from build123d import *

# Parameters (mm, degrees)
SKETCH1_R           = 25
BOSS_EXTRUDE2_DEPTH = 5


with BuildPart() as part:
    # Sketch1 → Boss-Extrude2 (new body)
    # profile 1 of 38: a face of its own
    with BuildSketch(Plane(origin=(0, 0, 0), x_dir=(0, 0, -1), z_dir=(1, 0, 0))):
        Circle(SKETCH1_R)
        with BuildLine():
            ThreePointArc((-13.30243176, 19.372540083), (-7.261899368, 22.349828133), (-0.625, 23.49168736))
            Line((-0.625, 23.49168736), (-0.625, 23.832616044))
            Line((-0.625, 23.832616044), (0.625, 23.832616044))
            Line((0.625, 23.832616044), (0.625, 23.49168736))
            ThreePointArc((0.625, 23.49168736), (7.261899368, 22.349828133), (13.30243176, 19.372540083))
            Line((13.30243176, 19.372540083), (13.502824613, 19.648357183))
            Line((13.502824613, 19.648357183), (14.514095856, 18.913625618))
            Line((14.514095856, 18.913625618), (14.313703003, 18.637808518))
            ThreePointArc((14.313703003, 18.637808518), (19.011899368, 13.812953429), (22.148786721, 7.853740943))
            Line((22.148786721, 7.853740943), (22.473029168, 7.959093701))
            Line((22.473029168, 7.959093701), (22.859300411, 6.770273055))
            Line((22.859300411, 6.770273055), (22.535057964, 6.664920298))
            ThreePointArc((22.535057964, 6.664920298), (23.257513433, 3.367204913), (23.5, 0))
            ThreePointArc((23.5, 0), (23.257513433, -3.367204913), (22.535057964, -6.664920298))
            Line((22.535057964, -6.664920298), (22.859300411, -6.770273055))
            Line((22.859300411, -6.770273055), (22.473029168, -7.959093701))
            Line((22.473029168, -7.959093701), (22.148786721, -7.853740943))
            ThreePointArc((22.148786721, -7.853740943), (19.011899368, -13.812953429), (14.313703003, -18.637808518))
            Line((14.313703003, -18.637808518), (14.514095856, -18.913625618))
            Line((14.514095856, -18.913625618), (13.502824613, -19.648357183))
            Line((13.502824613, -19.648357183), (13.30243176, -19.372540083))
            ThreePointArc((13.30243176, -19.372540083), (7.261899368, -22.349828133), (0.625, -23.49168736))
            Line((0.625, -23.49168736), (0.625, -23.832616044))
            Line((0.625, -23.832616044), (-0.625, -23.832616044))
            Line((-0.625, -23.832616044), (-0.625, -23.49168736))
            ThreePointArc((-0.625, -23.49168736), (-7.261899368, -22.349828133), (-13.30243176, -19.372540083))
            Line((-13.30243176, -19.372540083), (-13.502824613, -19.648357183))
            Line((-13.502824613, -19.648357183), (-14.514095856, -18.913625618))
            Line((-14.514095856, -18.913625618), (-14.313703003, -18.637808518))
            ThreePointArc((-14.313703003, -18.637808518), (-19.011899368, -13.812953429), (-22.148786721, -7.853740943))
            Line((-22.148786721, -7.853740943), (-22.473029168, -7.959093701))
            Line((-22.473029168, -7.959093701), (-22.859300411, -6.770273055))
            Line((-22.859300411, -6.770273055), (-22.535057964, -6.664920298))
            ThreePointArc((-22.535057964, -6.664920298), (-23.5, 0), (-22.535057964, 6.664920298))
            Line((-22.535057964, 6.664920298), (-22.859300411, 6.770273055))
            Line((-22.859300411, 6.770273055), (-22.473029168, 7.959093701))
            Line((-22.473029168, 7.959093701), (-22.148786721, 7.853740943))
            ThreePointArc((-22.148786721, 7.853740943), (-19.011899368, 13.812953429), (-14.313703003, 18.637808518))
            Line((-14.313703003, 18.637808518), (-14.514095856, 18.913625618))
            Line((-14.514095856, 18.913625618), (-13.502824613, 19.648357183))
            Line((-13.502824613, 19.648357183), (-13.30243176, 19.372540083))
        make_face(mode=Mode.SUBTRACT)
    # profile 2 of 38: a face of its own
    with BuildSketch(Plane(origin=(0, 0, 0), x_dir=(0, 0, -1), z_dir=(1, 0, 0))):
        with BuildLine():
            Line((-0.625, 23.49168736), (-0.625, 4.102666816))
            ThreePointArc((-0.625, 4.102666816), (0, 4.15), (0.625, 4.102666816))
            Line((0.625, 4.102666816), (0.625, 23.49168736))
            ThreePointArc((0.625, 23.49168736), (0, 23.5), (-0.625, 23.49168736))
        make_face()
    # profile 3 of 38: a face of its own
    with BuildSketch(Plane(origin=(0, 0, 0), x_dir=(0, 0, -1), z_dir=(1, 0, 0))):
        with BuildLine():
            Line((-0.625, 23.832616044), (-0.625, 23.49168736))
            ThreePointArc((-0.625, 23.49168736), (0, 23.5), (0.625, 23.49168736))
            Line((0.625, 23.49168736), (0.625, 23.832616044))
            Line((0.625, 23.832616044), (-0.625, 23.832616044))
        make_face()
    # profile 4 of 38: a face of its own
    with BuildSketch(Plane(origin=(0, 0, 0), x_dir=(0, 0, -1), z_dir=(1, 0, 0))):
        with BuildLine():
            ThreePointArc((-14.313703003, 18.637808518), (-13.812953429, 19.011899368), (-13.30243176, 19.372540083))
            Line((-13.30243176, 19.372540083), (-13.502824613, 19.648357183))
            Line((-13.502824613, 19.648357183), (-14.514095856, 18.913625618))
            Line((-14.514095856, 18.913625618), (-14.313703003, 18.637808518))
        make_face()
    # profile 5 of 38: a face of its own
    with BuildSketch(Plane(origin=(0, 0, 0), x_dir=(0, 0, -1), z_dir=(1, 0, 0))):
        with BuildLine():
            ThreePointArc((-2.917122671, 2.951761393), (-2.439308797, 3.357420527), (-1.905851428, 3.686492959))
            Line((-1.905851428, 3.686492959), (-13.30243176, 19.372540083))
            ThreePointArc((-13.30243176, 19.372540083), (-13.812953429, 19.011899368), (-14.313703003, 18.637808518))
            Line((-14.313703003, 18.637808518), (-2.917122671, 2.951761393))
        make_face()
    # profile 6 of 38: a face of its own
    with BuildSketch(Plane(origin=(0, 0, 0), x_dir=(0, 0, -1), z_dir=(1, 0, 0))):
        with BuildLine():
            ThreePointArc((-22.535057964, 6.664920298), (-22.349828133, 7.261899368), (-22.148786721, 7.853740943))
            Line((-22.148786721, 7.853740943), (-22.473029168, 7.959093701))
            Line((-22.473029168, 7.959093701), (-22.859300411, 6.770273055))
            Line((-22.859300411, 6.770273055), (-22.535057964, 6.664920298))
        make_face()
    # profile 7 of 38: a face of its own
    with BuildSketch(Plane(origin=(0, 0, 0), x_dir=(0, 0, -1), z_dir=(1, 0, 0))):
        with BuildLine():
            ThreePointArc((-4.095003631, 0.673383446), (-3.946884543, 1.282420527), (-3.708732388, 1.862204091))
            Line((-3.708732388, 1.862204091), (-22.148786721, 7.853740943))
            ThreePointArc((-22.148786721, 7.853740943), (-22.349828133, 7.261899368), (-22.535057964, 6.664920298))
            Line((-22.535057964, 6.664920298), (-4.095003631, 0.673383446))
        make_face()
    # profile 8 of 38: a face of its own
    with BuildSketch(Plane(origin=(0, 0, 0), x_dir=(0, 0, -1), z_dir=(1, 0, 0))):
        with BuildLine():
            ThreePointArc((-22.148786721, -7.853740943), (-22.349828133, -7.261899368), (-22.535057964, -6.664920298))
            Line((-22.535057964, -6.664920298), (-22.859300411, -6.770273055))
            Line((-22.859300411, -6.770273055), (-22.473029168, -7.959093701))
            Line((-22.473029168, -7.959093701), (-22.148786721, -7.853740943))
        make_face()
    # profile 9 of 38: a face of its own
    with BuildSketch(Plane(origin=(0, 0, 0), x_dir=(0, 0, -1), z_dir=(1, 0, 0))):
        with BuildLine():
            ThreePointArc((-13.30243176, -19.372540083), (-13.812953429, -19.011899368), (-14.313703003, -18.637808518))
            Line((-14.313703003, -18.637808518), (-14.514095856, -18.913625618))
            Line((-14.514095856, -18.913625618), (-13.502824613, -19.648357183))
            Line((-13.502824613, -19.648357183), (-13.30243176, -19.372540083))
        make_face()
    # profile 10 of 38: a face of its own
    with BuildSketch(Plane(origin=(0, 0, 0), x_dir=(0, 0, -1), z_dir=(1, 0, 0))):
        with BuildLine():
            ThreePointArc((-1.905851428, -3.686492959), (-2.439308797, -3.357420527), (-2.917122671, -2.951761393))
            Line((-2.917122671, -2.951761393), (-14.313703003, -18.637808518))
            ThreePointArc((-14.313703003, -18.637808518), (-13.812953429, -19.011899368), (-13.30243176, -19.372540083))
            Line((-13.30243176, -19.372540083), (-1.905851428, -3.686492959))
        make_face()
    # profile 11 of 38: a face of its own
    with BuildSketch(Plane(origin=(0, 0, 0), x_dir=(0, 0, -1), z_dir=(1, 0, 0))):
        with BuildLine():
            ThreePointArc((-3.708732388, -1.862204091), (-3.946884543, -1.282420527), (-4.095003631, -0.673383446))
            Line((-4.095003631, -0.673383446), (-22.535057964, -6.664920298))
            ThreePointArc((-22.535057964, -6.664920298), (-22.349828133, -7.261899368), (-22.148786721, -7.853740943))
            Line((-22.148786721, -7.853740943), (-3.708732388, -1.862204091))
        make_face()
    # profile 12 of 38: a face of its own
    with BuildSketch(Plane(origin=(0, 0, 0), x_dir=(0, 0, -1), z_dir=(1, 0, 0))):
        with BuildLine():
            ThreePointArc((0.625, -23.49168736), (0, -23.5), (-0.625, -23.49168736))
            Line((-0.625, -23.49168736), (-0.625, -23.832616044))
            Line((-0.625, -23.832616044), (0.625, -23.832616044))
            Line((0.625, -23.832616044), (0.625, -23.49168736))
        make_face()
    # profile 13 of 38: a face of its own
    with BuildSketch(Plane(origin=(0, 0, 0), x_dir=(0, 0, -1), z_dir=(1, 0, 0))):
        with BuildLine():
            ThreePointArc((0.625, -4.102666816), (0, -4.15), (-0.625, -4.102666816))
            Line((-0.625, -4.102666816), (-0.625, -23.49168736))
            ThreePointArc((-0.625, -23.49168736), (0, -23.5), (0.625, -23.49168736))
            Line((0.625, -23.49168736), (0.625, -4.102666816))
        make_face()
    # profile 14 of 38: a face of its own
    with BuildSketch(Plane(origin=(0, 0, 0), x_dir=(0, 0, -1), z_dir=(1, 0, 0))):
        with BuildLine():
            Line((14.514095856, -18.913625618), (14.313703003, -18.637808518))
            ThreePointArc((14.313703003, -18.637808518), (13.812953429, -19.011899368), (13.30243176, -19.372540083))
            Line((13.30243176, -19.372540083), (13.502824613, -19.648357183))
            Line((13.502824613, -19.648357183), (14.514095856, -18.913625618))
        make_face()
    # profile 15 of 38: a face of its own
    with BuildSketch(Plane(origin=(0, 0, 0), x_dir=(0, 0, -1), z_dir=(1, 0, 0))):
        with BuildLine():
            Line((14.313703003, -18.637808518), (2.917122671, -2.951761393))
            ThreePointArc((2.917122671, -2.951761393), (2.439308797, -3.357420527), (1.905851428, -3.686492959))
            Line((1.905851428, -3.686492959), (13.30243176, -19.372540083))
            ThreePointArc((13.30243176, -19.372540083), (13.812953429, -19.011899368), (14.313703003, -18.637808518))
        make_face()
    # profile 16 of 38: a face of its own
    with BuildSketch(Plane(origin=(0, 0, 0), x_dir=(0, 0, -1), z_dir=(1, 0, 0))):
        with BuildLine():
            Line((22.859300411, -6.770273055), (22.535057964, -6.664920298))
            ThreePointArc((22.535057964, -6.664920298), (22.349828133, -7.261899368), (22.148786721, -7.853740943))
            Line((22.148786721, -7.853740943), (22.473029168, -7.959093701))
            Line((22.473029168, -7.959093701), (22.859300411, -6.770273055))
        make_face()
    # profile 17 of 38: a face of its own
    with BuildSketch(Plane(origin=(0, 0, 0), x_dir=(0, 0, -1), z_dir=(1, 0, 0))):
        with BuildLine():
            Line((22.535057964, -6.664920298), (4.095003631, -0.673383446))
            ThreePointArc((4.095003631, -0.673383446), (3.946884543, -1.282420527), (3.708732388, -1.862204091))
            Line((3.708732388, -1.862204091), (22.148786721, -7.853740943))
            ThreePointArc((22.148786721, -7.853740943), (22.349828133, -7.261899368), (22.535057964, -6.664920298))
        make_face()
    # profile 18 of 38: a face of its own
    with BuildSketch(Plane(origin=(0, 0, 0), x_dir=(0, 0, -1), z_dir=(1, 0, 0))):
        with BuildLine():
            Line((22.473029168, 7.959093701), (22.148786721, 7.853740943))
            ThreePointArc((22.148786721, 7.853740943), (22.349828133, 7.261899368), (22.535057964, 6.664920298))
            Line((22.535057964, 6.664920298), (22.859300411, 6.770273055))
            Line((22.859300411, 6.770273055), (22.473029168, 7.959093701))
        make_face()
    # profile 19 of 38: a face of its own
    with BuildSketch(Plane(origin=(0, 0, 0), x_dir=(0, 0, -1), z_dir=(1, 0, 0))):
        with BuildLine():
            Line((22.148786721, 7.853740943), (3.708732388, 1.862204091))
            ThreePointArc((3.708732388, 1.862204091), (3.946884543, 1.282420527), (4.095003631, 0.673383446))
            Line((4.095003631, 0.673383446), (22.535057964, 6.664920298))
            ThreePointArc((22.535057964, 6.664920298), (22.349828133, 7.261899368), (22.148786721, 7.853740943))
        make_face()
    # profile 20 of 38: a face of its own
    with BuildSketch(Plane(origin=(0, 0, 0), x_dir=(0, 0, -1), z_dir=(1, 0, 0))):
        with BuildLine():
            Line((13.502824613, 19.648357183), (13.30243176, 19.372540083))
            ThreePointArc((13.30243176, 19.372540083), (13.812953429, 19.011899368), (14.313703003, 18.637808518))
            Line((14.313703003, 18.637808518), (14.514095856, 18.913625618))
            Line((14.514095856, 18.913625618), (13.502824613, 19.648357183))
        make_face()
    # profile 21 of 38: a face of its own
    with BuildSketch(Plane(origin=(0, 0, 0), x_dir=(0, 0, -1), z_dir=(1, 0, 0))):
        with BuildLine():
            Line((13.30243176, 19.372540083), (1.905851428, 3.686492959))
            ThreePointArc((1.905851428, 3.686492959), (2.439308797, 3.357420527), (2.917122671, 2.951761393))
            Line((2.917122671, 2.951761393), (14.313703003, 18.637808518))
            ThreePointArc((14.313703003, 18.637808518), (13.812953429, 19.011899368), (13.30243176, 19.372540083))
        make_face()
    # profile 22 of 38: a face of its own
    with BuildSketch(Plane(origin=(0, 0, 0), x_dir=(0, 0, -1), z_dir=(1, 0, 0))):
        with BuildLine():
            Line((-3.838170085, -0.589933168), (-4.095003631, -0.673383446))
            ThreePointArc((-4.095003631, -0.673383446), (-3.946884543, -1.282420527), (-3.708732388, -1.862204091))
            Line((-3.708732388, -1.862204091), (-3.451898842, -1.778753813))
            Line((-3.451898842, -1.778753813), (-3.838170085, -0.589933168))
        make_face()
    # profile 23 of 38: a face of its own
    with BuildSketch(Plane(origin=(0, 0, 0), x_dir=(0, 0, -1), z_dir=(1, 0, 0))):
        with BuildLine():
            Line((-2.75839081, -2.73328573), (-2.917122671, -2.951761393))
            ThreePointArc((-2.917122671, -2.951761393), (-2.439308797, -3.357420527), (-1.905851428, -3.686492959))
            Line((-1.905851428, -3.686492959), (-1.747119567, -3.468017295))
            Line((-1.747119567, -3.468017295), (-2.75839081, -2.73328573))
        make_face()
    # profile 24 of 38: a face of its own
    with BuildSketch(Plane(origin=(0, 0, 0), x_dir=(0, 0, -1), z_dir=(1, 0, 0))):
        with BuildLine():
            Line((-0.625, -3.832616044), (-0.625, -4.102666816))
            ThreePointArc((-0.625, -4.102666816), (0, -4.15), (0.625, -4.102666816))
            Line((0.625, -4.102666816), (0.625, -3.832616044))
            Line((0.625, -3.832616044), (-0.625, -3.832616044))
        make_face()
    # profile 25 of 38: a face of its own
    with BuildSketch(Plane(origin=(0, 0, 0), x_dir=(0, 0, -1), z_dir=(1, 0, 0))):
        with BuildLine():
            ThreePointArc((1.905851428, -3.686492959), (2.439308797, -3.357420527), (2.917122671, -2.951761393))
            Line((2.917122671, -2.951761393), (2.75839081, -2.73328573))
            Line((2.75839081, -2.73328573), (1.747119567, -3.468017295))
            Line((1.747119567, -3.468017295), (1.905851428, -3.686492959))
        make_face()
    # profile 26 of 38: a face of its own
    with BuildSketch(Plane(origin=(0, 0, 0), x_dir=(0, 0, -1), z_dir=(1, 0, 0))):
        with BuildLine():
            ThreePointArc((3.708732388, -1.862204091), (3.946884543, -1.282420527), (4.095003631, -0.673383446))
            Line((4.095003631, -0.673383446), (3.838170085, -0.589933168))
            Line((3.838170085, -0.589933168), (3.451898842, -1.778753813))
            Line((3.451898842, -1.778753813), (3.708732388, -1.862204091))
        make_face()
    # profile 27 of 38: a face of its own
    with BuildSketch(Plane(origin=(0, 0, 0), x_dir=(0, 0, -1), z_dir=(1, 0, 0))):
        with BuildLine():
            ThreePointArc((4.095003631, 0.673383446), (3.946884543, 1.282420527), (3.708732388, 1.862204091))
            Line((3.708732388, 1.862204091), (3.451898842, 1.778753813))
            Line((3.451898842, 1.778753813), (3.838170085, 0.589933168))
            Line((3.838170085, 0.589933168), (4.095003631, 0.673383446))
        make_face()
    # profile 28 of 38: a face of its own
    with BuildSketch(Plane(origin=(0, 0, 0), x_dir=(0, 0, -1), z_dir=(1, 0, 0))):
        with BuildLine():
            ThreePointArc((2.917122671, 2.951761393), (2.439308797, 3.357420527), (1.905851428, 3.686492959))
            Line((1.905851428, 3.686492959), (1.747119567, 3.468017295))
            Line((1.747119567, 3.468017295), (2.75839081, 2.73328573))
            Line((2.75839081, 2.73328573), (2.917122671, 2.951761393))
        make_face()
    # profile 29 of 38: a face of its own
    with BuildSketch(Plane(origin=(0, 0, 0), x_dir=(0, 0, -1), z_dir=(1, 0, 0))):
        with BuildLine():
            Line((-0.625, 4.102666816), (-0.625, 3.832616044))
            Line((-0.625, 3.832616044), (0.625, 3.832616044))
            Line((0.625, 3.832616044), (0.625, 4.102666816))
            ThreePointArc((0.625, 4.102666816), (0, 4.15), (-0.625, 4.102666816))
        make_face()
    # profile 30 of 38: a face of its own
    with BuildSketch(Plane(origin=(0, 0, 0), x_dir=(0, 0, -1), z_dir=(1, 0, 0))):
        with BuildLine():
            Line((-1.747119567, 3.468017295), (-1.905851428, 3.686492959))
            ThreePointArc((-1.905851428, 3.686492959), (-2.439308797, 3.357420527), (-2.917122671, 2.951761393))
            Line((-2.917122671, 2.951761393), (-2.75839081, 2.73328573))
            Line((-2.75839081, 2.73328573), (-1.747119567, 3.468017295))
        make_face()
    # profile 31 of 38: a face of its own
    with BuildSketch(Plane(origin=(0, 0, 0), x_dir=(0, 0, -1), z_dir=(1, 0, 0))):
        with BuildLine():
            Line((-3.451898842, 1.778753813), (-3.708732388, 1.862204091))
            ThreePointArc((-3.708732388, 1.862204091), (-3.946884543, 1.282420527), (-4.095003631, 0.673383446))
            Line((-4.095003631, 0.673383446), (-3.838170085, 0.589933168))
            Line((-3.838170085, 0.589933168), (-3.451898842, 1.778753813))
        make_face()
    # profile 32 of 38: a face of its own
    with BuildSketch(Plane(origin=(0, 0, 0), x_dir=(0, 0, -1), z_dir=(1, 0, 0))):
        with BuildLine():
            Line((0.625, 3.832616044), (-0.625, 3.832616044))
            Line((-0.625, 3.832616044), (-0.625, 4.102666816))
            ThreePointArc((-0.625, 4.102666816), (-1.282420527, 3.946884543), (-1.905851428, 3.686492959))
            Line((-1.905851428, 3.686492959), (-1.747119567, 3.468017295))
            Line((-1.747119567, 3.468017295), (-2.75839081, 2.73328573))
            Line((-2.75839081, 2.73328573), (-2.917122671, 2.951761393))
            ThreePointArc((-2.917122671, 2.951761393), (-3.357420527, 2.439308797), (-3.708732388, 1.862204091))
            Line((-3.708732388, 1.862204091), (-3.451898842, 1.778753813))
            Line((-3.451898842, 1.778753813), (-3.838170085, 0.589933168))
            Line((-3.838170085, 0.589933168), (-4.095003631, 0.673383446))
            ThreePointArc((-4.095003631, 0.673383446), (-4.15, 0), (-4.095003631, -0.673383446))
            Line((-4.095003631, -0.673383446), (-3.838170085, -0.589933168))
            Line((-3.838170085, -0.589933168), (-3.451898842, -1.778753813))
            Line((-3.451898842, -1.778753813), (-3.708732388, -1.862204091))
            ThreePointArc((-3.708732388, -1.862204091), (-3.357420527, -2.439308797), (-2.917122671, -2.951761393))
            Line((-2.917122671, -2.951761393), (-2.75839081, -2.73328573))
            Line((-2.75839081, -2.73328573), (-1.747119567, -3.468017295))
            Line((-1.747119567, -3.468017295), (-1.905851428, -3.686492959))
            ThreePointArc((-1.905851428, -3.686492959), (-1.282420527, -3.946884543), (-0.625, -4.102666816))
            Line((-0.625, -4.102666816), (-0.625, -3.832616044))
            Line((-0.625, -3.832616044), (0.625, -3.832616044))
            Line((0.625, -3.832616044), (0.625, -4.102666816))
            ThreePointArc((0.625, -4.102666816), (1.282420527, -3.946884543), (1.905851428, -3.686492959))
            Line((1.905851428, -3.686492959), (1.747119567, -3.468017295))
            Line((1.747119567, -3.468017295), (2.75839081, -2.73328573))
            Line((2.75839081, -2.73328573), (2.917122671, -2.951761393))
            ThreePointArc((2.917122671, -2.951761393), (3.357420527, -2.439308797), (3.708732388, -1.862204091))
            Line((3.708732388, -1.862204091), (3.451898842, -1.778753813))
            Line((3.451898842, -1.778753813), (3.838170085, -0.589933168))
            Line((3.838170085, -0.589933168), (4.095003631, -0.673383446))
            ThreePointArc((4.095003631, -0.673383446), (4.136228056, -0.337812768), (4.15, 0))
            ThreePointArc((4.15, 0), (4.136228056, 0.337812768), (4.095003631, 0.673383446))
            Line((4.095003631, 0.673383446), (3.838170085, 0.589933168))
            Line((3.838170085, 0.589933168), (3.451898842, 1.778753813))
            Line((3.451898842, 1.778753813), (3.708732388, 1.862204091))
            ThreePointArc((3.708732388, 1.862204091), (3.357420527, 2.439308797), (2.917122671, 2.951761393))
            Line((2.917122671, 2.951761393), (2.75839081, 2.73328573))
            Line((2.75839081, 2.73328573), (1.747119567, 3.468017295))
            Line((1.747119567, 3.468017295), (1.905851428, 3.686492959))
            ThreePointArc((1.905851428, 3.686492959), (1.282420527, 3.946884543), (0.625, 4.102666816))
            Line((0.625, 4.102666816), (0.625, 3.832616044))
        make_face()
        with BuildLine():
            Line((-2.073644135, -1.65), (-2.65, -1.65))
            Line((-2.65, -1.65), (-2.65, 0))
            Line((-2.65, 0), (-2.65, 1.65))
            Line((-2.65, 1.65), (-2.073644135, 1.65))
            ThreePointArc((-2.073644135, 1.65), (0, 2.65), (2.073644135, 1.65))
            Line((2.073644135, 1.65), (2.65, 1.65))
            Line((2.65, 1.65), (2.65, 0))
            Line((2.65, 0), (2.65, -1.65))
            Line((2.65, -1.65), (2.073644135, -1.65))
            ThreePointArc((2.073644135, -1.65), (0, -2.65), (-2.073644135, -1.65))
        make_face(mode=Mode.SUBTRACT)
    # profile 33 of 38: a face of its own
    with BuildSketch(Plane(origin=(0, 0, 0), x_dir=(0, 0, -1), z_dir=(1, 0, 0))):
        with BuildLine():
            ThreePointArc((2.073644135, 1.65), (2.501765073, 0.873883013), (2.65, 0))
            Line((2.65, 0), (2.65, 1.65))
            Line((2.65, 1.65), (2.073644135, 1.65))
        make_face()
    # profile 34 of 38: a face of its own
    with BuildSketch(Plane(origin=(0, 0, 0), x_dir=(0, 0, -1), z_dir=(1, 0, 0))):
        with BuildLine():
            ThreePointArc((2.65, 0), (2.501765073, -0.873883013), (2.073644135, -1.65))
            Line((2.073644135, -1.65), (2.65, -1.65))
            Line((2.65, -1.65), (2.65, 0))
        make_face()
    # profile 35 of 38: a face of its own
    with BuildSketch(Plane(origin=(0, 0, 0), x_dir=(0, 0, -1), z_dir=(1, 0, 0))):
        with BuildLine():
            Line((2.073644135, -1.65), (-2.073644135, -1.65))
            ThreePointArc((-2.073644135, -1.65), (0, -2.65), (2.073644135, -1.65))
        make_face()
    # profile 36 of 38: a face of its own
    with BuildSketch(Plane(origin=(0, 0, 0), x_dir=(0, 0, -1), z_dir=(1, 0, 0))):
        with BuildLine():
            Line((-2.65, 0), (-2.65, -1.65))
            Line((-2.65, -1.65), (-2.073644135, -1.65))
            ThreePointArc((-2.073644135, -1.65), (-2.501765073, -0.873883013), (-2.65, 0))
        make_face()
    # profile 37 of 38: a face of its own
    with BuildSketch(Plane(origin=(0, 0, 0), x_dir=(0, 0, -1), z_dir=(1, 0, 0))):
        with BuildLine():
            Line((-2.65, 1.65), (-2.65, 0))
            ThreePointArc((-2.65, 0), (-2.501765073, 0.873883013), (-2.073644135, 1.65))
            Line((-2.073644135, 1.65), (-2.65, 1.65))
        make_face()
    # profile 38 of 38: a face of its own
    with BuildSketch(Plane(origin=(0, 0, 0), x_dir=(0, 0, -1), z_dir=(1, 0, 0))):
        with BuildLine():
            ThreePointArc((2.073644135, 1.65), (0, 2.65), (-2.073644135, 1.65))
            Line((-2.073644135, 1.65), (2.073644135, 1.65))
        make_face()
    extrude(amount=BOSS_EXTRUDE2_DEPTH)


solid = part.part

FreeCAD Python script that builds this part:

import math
import FreeCAD as App
import Part
import Sketcher
from FreeCAD import Vector
Q = App.Units.Quantity

doc = App.newDocument("Part")
params = doc.addObject("Spreadsheet::Sheet", "Params")
for row, (alias, value) in enumerate([
    ("sketch1_diameter", "50 mm"),
    ("sketch1_radius", "23.5 mm"),
    ("sketch1_radius2", "4.15 mm"),
    ("sketch1_radius3", "2.65 mm"),
    ("pad1_length", "5 mm"),
], start=1):
    params.set(f"A{row}", alias)
    params.set(f"B{row}", "=" + value)
    params.setAlias(f"B{row}", alias)

body = doc.addObject("PartDesign::Body", "Body")

sketch1 = body.newObject("Sketcher::SketchObject", "Sketch")
sketch1.AttachmentSupport = (doc.getObject("YZ_Plane"), [""])
sketch1.MapMode = "FlatFace"
sketch1.addGeometry([
    Part.Circle(Vector(0, 0, 0), Vector(0, 0, 1), 25),
    Part.ArcOfCircle(Part.Circle(Vector(0, 0, 0), Vector(0, 0, 1), 23.5), math.radians(37.524004), math.radians(70.475996)),
    Part.LineSegment(Vector(18.637809, 14.313703, 0), Vector(2.951761, 2.917123, 0)),
    Part.ArcOfCircle(Part.Circle(Vector(0, 0, 0), Vector(0, 0, 1), 4.15), math.radians(44.661839), math.radians(63.338161)),
    Part.LineSegment(Vector(1.862204, 3.708732, 0), Vector(7.853741, 22.148787, 0)),
    Part.ArcOfCircle(Part.Circle(Vector(0, 0, 0), Vector(0, 0, 1), 23.5), math.radians(73.524004), math.radians(106.475996)),
    Part.LineSegment(Vector(6.66492, 22.535058, 0), Vector(0.673383, 4.095004, 0)),
    Part.ArcOfCircle(Part.Circle(Vector(0, 0, 0), Vector(0, 0, 1), 4.15), math.radians(80.661839), math.radians(99.338161)),
    Part.LineSegment(Vector(-0.673383, 4.095004, 0), Vector(-6.66492, 22.535058, 0)),
    Part.ArcOfCircle(Part.Circle(Vector(0, 0, 0), Vector(0, 0, 1), 23.5), math.radians(109.524004), math.radians(142.475996)),
    Part.LineSegment(Vector(-7.853741, 22.148787, 0), Vector(-1.862204, 3.708732, 0)),
    Part.ArcOfCircle(Part.Circle(Vector(0, 0, 0), Vector(0, 0, 1), 4.15), math.radians(116.661839), math.radians(135.338161)),
    Part.LineSegment(Vector(-2.951761, 2.917123, 0), Vector(-18.637809, 14.313703, 0)),
    Part.ArcOfCircle(Part.Circle(Vector(0, 0, 0), Vector(0, 0, 1), 23.5), math.radians(145.524004), math.radians(178.475996)),
    Part.LineSegment(Vector(-19.37254, 13.302432, 0), Vector(-3.686493, 1.905851, 0)),
    Part.ArcOfCircle(Part.Circle(Vector(0, 0, 0), Vector(0, 0, 1), 4.15), math.radians(152.661839), math.radians(171.338161)),
    Part.LineSegment(Vector(-4.102667, 0.625, 0), Vector(-23.491687, 0.625, 0)),
    Part.ArcOfCircle(Part.Circle(Vector(0, 0, 0), Vector(0, 0, 1), 23.5), math.radians(-178.475996), math.radians(-145.524004)),
    Part.LineSegment(Vector(-23.491687, -0.625, 0), Vector(-4.102667, -0.625, 0)),
    Part.ArcOfCircle(Part.Circle(Vector(0, 0, 0), Vector(0, 0, 1), 4.15), math.radians(-171.338161), math.radians(-152.661839)),
    Part.LineSegment(Vector(-3.686493, -1.905851, 0), Vector(-19.37254, -13.302432, 0)),
    Part.ArcOfCircle(Part.Circle(Vector(0, 0, 0), Vector(0, 0, 1), 23.5), math.radians(-142.475996), math.radians(-109.524004)),
    Part.LineSegment(Vector(-18.637809, -14.313703, 0), Vector(-2.951761, -2.917123, 0)),
    Part.ArcOfCircle(Part.Circle(Vector(0, 0, 0), Vector(0, 0, 1), 4.15), math.radians(-135.338161), math.radians(-116.661839)),
    Part.LineSegment(Vector(-1.862204, -3.708732, 0), Vector(-7.853741, -22.148787, 0)),
    Part.ArcOfCircle(Part.Circle(Vector(0, 0, 0), Vector(0, 0, 1), 23.5), math.radians(-106.475996), math.radians(-90)),
    Part.LineSegment(Vector(-6.66492, -22.535058, 0), Vector(-0.673383, -4.095004, 0)),
    Part.ArcOfCircle(Part.Circle(Vector(0, 0, 0), Vector(0, 0, 1), 4.15), math.radians(-99.338161), math.radians(-90)),
    Part.ArcOfCircle(Part.Circle(Vector(0, 0, 0), Vector(0, 0, 1), 4.15), math.radians(-90), math.radians(-80.661839)),
    Part.LineSegment(Vector(0.673383, -4.095004, 0), Vector(6.66492, -22.535058, 0)),
    Part.ArcOfCircle(Part.Circle(Vector(0, 0, 0), Vector(0, 0, 1), 23.5), math.radians(-90), math.radians(-73.524004)),
    Part.ArcOfCircle(Part.Circle(Vector(0, 0, 0), Vector(0, 0, 1), 23.5), math.radians(-70.475996), math.radians(-37.524004)),
    Part.LineSegment(Vector(7.853741, -22.148787, 0), Vector(1.862204, -3.708732, 0)),
    Part.ArcOfCircle(Part.Circle(Vector(0, 0, 0), Vector(0, 0, 1), 4.15), math.radians(-63.338161), math.radians(-44.661839)),
    Part.LineSegment(Vector(2.951761, -2.917123, 0), Vector(18.637809, -14.313703, 0)),
    Part.ArcOfCircle(Part.Circle(Vector(0, 0, 0), Vector(0, 0, 1), 23.5), math.radians(-34.475996), math.radians(-1.524004)),
    Part.LineSegment(Vector(19.37254, -13.302432, 0), Vector(3.686493, -1.905851, 0)),
    Part.ArcOfCircle(Part.Circle(Vector(0, 0, 0), Vector(0, 0, 1), 4.15), math.radians(-27.338161), math.radians(-8.661839)),
    Part.LineSegment(Vector(4.102667, -0.625, 0), Vector(23.491687, -0.625, 0)),
    Part.ArcOfCircle(Part.Circle(Vector(0, 0, 0), Vector(0, 0, 1), 23.5), math.radians(1.524004), math.radians(34.475996)),
    Part.LineSegment(Vector(23.491687, 0.625, 0), Vector(4.102667, 0.625, 0)),
    Part.ArcOfCircle(Part.Circle(Vector(0, 0, 0), Vector(0, 0, 1), 4.15), math.radians(8.661839), math.radians(27.338161)),
    Part.LineSegment(Vector(3.686493, 1.905851, 0), Vector(19.37254, 13.302432, 0)),
    Part.ArcOfCircle(Part.Circle(Vector(0, 0, 0), Vector(0, 0, 1), 2.65), math.radians(-128.509289), math.radians(-90)),
    Part.LineSegment(Vector(-1.65, -2.073644, 0), Vector(-1.65, 2.073644, 0)),
    Part.ArcOfCircle(Part.Circle(Vector(0, 0, 0), Vector(0, 0, 1), 2.65), math.radians(90), math.radians(128.509289)),
    Part.ArcOfCircle(Part.Circle(Vector(0, 0, 0), Vector(0, 0, 1), 2.65), math.radians(51.490711), math.radians(90)),
    Part.LineSegment(Vector(1.65, 2.073644, 0), Vector(1.65, -2.073644, 0)),
    Part.ArcOfCircle(Part.Circle(Vector(0, 0, 0), Vector(0, 0, 1), 2.65), math.radians(-90), math.radians(-51.490711)),
], False)
sketch1.addConstraint([
    Sketcher.Constraint("Coincident", 1, 1, 2, 1),
    Sketcher.Constraint("Coincident", 2, 2, 3, 1),
    Sketcher.Constraint("Coincident", 3, 2, 4, 1),
    Sketcher.Constraint("Coincident", 4, 2, 1, 2),
    Sketcher.Constraint("Coincident", 5, 1, 6, 1),
    Sketcher.Constraint("Coincident", 6, 2, 7, 1),
    Sketcher.Constraint("Coincident", 7, 2, 8, 1),
    Sketcher.Constraint("Coincident", 8, 2, 5, 2),
    Sketcher.Constraint("Coincident", 9, 1, 10, 1),
    Sketcher.Constraint("Coincident", 10, 2, 11, 1),
    Sketcher.Constraint("Coincident", 11, 2, 12, 1),
    Sketcher.Constraint("Coincident", 12, 2, 9, 2),
    Sketcher.Constraint("Coincident", 13, 1, 14, 1),
    Sketcher.Constraint("Coincident", 14, 2, 15, 1),
    Sketcher.Constraint("Coincident", 15, 2, 16, 1),
    Sketcher.Constraint("Coincident", 16, 2, 13, 2),
    Sketcher.Constraint("Coincident", 17, 1, 18, 1),
    Sketcher.Constraint("Coincident", 18, 2, 19, 1),
    Sketcher.Constraint("Coincident", 19, 2, 20, 1),
    Sketcher.Constraint("Coincident", 20, 2, 17, 2),
    Sketcher.Constraint("Coincident", 21, 1, 22, 1),
    Sketcher.Constraint("Coincident", 22, 2, 23, 1),
    Sketcher.Constraint("Coincident", 23, 2, 24, 1),
    Sketcher.Constraint("Coincident", 24, 2, 21, 2),
    Sketcher.Constraint("Coincident", 25, 1, 26, 1),
    Sketcher.Constraint("Coincident", 26, 2, 27, 1),
    Sketcher.Constraint("Tangent", 27, 2, 28, 1),
    Sketcher.Constraint("Coincident", 28, 2, 29, 1),
    Sketcher.Constraint("Coincident", 29, 2, 30, 2),
    Sketcher.Constraint("Tangent", 30, 1, 25, 2),
    Sketcher.Constraint("Coincident", 31, 1, 32, 1),
    Sketcher.Constraint("Coincident", 32, 2, 33, 1),
    Sketcher.Constraint("Coincident", 33, 2, 34, 1),
    Sketcher.Constraint("Coincident", 34, 2, 31, 2),
    Sketcher.Constraint("Coincident", 35, 1, 36, 1),
    Sketcher.Constraint("Coincident", 36, 2, 37, 1),
    Sketcher.Constraint("Coincident", 37, 2, 38, 1),
    Sketcher.Constraint("Coincident", 38, 2, 35, 2),
    Sketcher.Constraint("Coincident", 39, 1, 40, 1),
    Sketcher.Constraint("Coincident", 40, 2, 41, 1),
    Sketcher.Constraint("Coincident", 41, 2, 42, 1),
    Sketcher.Constraint("Coincident", 42, 2, 39, 2),
    Sketcher.Constraint("Coincident", 43, 1, 44, 1),
    Sketcher.Constraint("Coincident", 44, 2, 45, 2),
    Sketcher.Constraint("Tangent", 45, 1, 46, 2),
    Sketcher.Constraint("Coincident", 46, 1, 47, 1),
    Sketcher.Constraint("Coincident", 47, 2, 48, 2),
    Sketcher.Constraint("Tangent", 48, 1, 43, 2),
    Sketcher.Constraint("Horizontal", 16),
    Sketcher.Constraint("Horizontal", 18),
    Sketcher.Constraint("Horizontal", 38),
    Sketcher.Constraint("Horizontal", 40),
    Sketcher.Constraint("Vertical", 44),
    Sketcher.Constraint("Vertical", 47),
    Sketcher.Constraint("Coincident", 0, 3, -1, 1),
    Sketcher.Constraint("Coincident", 1, 3, -1, 1),
    Sketcher.Constraint("Coincident", 3, 3, -1, 1),
    Sketcher.Constraint("Coincident", 5, 3, -1, 1),
    Sketcher.Constraint("Coincident", 7, 3, -1, 1),
    Sketcher.Constraint("Coincident", 9, 3, -1, 1),
    Sketcher.Constraint("Coincident", 11, 3, -1, 1),
    Sketcher.Constraint("Coincident", 13, 3, -1, 1),
    Sketcher.Constraint("Coincident", 15, 3, -1, 1),
    Sketcher.Constraint("Coincident", 17, 3, -1, 1),
    Sketcher.Constraint("Coincident", 19, 3, -1, 1),
    Sketcher.Constraint("Coincident", 21, 3, -1, 1),
    Sketcher.Constraint("Coincident", 23, 3, -1, 1),
    Sketcher.Constraint("Coincident", 25, 3, -1, 1),
    Sketcher.Constraint("Coincident", 27, 3, -1, 1),
    Sketcher.Constraint("Coincident", 31, 3, -1, 1),
    Sketcher.Constraint("Coincident", 33, 3, -1, 1),
    Sketcher.Constraint("Coincident", 35, 3, -1, 1),
    Sketcher.Constraint("Coincident", 37, 3, -1, 1),
    Sketcher.Constraint("Coincident", 39, 3, -1, 1),
    Sketcher.Constraint("Coincident", 41, 3, -1, 1),
    Sketcher.Constraint("Coincident", 43, 3, -1, 1),
    Sketcher.Constraint("Coincident", 45, 3, -1, 1),
    Sketcher.Constraint("Equal", 1, 5),
    Sketcher.Constraint("Equal", 3, 7),
    Sketcher.Constraint("Equal", 5, 9),
    Sketcher.Constraint("Equal", 7, 11),
    Sketcher.Constraint("Equal", 9, 13),
    Sketcher.Constraint("Equal", 11, 15),
    Sketcher.Constraint("Equal", 13, 17),
    Sketcher.Constraint("Equal", 15, 19),
    Sketcher.Constraint("Equal", 17, 21),
    Sketcher.Constraint("Equal", 19, 23),
    Sketcher.Constraint("Equal", 21, 25),
    Sketcher.Constraint("Equal", 23, 27),
    Sketcher.Constraint("Equal", 27, 28),
    Sketcher.Constraint("Equal", 25, 30),
    Sketcher.Constraint("Equal", 30, 31),
    Sketcher.Constraint("Equal", 28, 33),
    Sketcher.Constraint("Equal", 31, 35),
    Sketcher.Constraint("Equal", 33, 37),
    Sketcher.Constraint("Equal", 35, 39),
    Sketcher.Constraint("Equal", 37, 41),
    Sketcher.Constraint("Equal", 43, 45),
    Sketcher.Constraint("Equal", 45, 46),
    Sketcher.Constraint("Equal", 46, 48),
    Sketcher.Constraint("PointOnObject", 27, 2, -2),
    Sketcher.Constraint("PointOnObject", 30, 1, -2),
    Sketcher.Constraint("PointOnObject", 45, 1, -2),
    Sketcher.Constraint("PointOnObject", 48, 1, -2),
    Sketcher.Constraint("Parallel", 4, 6),
    Sketcher.Constraint("Parallel", 8, 10),
    Sketcher.Constraint("Parallel", 12, 14),
    Sketcher.Constraint("Parallel", 2, 20),
    Sketcher.Constraint("Parallel", 20, 22),
    Sketcher.Constraint("Parallel", 6, 24),
    Sketcher.Constraint("Parallel", 24, 26),
    Sketcher.Constraint("Parallel", 10, 29),
    Sketcher.Constraint("Parallel", 29, 32),
    Sketcher.Constraint("Parallel", 14, 34),
    Sketcher.Constraint("Parallel", 34, 36),
    Sketcher.Constraint("Parallel", 22, 42),
    Sketcher.Constraint("Horizontal", 6, 2, 7, 2),
    Sketcher.Constraint("Horizontal", 5, 1, 8, 2),
    Sketcher.Constraint("Horizontal", 4, 2, 9, 1),
    Sketcher.Constraint("Horizontal", 2, 2, 11, 2),
    Sketcher.Constraint("Horizontal", 1, 1, 12, 2),
    Sketcher.Constraint("Horizontal", 26, 2, 28, 2),
    Sketcher.Constraint("Horizontal", 24, 2, 31, 1),
    Sketcher.Constraint("Horizontal", 22, 2, 33, 2),
    Sketcher.Constraint("Horizontal", 20, 2, 35, 1),
    Sketcher.Constraint("Horizontal", 18, 2, 37, 2),
    Sketcher.Constraint("Horizontal", 16, 2, 39, 1),
    Sketcher.Constraint("Horizontal", 14, 2, 41, 2),
    Sketcher.Constraint("Horizontal", 44, 2, 46, 1),
    Sketcher.Constraint("Vertical", 16, 2, 17, 1),
    Sketcher.Constraint("Vertical", 14, 2, 19, 2),
    Sketcher.Constraint("Vertical", 12, 2, 21, 1),
    Sketcher.Constraint("Vertical", 10, 2, 23, 2),
    Sketcher.Constraint("Vertical", 8, 2, 25, 1),
    Sketcher.Constraint("Equal", 2, 4),
    Sketcher.Constraint("Equal", 4, 6),
    Sketcher.Constraint("Equal", 12, 14),
    Sketcher.Constraint("Diameter", 0, 50.0),
    Sketcher.Constraint("Radius", 1, 23.5),
    Sketcher.Constraint("Angle", 2, Q("-144 deg")),
    Sketcher.Constraint("Angle", 4, Q("72 deg")),
    Sketcher.Constraint("Radius", 3, 4.15),
    Sketcher.Constraint("Radius", 43, 2.65),
    Sketcher.Constraint("DistanceX", 43, 1, -1, 1, 1.65),
    Sketcher.Constraint("DistanceY", -1, 1, 15, 2, 0.625),
    Sketcher.Constraint("Distance", 2, 19.389021),
])
sketch1.setExpression("Constraints[137]", "Params.sketch1_diameter")
sketch1.setExpression("Constraints[138]", "Params.sketch1_radius")
sketch1.setExpression("Constraints[141]", "Params.sketch1_radius2")
sketch1.setExpression("Constraints[142]", "Params.sketch1_radius3")
pad1 = body.newObject("PartDesign::Pad", "Pad")
pad1.Profile = sketch1
pad1.setExpression("Length", "Params.pad1_length")

doc.recompute()
